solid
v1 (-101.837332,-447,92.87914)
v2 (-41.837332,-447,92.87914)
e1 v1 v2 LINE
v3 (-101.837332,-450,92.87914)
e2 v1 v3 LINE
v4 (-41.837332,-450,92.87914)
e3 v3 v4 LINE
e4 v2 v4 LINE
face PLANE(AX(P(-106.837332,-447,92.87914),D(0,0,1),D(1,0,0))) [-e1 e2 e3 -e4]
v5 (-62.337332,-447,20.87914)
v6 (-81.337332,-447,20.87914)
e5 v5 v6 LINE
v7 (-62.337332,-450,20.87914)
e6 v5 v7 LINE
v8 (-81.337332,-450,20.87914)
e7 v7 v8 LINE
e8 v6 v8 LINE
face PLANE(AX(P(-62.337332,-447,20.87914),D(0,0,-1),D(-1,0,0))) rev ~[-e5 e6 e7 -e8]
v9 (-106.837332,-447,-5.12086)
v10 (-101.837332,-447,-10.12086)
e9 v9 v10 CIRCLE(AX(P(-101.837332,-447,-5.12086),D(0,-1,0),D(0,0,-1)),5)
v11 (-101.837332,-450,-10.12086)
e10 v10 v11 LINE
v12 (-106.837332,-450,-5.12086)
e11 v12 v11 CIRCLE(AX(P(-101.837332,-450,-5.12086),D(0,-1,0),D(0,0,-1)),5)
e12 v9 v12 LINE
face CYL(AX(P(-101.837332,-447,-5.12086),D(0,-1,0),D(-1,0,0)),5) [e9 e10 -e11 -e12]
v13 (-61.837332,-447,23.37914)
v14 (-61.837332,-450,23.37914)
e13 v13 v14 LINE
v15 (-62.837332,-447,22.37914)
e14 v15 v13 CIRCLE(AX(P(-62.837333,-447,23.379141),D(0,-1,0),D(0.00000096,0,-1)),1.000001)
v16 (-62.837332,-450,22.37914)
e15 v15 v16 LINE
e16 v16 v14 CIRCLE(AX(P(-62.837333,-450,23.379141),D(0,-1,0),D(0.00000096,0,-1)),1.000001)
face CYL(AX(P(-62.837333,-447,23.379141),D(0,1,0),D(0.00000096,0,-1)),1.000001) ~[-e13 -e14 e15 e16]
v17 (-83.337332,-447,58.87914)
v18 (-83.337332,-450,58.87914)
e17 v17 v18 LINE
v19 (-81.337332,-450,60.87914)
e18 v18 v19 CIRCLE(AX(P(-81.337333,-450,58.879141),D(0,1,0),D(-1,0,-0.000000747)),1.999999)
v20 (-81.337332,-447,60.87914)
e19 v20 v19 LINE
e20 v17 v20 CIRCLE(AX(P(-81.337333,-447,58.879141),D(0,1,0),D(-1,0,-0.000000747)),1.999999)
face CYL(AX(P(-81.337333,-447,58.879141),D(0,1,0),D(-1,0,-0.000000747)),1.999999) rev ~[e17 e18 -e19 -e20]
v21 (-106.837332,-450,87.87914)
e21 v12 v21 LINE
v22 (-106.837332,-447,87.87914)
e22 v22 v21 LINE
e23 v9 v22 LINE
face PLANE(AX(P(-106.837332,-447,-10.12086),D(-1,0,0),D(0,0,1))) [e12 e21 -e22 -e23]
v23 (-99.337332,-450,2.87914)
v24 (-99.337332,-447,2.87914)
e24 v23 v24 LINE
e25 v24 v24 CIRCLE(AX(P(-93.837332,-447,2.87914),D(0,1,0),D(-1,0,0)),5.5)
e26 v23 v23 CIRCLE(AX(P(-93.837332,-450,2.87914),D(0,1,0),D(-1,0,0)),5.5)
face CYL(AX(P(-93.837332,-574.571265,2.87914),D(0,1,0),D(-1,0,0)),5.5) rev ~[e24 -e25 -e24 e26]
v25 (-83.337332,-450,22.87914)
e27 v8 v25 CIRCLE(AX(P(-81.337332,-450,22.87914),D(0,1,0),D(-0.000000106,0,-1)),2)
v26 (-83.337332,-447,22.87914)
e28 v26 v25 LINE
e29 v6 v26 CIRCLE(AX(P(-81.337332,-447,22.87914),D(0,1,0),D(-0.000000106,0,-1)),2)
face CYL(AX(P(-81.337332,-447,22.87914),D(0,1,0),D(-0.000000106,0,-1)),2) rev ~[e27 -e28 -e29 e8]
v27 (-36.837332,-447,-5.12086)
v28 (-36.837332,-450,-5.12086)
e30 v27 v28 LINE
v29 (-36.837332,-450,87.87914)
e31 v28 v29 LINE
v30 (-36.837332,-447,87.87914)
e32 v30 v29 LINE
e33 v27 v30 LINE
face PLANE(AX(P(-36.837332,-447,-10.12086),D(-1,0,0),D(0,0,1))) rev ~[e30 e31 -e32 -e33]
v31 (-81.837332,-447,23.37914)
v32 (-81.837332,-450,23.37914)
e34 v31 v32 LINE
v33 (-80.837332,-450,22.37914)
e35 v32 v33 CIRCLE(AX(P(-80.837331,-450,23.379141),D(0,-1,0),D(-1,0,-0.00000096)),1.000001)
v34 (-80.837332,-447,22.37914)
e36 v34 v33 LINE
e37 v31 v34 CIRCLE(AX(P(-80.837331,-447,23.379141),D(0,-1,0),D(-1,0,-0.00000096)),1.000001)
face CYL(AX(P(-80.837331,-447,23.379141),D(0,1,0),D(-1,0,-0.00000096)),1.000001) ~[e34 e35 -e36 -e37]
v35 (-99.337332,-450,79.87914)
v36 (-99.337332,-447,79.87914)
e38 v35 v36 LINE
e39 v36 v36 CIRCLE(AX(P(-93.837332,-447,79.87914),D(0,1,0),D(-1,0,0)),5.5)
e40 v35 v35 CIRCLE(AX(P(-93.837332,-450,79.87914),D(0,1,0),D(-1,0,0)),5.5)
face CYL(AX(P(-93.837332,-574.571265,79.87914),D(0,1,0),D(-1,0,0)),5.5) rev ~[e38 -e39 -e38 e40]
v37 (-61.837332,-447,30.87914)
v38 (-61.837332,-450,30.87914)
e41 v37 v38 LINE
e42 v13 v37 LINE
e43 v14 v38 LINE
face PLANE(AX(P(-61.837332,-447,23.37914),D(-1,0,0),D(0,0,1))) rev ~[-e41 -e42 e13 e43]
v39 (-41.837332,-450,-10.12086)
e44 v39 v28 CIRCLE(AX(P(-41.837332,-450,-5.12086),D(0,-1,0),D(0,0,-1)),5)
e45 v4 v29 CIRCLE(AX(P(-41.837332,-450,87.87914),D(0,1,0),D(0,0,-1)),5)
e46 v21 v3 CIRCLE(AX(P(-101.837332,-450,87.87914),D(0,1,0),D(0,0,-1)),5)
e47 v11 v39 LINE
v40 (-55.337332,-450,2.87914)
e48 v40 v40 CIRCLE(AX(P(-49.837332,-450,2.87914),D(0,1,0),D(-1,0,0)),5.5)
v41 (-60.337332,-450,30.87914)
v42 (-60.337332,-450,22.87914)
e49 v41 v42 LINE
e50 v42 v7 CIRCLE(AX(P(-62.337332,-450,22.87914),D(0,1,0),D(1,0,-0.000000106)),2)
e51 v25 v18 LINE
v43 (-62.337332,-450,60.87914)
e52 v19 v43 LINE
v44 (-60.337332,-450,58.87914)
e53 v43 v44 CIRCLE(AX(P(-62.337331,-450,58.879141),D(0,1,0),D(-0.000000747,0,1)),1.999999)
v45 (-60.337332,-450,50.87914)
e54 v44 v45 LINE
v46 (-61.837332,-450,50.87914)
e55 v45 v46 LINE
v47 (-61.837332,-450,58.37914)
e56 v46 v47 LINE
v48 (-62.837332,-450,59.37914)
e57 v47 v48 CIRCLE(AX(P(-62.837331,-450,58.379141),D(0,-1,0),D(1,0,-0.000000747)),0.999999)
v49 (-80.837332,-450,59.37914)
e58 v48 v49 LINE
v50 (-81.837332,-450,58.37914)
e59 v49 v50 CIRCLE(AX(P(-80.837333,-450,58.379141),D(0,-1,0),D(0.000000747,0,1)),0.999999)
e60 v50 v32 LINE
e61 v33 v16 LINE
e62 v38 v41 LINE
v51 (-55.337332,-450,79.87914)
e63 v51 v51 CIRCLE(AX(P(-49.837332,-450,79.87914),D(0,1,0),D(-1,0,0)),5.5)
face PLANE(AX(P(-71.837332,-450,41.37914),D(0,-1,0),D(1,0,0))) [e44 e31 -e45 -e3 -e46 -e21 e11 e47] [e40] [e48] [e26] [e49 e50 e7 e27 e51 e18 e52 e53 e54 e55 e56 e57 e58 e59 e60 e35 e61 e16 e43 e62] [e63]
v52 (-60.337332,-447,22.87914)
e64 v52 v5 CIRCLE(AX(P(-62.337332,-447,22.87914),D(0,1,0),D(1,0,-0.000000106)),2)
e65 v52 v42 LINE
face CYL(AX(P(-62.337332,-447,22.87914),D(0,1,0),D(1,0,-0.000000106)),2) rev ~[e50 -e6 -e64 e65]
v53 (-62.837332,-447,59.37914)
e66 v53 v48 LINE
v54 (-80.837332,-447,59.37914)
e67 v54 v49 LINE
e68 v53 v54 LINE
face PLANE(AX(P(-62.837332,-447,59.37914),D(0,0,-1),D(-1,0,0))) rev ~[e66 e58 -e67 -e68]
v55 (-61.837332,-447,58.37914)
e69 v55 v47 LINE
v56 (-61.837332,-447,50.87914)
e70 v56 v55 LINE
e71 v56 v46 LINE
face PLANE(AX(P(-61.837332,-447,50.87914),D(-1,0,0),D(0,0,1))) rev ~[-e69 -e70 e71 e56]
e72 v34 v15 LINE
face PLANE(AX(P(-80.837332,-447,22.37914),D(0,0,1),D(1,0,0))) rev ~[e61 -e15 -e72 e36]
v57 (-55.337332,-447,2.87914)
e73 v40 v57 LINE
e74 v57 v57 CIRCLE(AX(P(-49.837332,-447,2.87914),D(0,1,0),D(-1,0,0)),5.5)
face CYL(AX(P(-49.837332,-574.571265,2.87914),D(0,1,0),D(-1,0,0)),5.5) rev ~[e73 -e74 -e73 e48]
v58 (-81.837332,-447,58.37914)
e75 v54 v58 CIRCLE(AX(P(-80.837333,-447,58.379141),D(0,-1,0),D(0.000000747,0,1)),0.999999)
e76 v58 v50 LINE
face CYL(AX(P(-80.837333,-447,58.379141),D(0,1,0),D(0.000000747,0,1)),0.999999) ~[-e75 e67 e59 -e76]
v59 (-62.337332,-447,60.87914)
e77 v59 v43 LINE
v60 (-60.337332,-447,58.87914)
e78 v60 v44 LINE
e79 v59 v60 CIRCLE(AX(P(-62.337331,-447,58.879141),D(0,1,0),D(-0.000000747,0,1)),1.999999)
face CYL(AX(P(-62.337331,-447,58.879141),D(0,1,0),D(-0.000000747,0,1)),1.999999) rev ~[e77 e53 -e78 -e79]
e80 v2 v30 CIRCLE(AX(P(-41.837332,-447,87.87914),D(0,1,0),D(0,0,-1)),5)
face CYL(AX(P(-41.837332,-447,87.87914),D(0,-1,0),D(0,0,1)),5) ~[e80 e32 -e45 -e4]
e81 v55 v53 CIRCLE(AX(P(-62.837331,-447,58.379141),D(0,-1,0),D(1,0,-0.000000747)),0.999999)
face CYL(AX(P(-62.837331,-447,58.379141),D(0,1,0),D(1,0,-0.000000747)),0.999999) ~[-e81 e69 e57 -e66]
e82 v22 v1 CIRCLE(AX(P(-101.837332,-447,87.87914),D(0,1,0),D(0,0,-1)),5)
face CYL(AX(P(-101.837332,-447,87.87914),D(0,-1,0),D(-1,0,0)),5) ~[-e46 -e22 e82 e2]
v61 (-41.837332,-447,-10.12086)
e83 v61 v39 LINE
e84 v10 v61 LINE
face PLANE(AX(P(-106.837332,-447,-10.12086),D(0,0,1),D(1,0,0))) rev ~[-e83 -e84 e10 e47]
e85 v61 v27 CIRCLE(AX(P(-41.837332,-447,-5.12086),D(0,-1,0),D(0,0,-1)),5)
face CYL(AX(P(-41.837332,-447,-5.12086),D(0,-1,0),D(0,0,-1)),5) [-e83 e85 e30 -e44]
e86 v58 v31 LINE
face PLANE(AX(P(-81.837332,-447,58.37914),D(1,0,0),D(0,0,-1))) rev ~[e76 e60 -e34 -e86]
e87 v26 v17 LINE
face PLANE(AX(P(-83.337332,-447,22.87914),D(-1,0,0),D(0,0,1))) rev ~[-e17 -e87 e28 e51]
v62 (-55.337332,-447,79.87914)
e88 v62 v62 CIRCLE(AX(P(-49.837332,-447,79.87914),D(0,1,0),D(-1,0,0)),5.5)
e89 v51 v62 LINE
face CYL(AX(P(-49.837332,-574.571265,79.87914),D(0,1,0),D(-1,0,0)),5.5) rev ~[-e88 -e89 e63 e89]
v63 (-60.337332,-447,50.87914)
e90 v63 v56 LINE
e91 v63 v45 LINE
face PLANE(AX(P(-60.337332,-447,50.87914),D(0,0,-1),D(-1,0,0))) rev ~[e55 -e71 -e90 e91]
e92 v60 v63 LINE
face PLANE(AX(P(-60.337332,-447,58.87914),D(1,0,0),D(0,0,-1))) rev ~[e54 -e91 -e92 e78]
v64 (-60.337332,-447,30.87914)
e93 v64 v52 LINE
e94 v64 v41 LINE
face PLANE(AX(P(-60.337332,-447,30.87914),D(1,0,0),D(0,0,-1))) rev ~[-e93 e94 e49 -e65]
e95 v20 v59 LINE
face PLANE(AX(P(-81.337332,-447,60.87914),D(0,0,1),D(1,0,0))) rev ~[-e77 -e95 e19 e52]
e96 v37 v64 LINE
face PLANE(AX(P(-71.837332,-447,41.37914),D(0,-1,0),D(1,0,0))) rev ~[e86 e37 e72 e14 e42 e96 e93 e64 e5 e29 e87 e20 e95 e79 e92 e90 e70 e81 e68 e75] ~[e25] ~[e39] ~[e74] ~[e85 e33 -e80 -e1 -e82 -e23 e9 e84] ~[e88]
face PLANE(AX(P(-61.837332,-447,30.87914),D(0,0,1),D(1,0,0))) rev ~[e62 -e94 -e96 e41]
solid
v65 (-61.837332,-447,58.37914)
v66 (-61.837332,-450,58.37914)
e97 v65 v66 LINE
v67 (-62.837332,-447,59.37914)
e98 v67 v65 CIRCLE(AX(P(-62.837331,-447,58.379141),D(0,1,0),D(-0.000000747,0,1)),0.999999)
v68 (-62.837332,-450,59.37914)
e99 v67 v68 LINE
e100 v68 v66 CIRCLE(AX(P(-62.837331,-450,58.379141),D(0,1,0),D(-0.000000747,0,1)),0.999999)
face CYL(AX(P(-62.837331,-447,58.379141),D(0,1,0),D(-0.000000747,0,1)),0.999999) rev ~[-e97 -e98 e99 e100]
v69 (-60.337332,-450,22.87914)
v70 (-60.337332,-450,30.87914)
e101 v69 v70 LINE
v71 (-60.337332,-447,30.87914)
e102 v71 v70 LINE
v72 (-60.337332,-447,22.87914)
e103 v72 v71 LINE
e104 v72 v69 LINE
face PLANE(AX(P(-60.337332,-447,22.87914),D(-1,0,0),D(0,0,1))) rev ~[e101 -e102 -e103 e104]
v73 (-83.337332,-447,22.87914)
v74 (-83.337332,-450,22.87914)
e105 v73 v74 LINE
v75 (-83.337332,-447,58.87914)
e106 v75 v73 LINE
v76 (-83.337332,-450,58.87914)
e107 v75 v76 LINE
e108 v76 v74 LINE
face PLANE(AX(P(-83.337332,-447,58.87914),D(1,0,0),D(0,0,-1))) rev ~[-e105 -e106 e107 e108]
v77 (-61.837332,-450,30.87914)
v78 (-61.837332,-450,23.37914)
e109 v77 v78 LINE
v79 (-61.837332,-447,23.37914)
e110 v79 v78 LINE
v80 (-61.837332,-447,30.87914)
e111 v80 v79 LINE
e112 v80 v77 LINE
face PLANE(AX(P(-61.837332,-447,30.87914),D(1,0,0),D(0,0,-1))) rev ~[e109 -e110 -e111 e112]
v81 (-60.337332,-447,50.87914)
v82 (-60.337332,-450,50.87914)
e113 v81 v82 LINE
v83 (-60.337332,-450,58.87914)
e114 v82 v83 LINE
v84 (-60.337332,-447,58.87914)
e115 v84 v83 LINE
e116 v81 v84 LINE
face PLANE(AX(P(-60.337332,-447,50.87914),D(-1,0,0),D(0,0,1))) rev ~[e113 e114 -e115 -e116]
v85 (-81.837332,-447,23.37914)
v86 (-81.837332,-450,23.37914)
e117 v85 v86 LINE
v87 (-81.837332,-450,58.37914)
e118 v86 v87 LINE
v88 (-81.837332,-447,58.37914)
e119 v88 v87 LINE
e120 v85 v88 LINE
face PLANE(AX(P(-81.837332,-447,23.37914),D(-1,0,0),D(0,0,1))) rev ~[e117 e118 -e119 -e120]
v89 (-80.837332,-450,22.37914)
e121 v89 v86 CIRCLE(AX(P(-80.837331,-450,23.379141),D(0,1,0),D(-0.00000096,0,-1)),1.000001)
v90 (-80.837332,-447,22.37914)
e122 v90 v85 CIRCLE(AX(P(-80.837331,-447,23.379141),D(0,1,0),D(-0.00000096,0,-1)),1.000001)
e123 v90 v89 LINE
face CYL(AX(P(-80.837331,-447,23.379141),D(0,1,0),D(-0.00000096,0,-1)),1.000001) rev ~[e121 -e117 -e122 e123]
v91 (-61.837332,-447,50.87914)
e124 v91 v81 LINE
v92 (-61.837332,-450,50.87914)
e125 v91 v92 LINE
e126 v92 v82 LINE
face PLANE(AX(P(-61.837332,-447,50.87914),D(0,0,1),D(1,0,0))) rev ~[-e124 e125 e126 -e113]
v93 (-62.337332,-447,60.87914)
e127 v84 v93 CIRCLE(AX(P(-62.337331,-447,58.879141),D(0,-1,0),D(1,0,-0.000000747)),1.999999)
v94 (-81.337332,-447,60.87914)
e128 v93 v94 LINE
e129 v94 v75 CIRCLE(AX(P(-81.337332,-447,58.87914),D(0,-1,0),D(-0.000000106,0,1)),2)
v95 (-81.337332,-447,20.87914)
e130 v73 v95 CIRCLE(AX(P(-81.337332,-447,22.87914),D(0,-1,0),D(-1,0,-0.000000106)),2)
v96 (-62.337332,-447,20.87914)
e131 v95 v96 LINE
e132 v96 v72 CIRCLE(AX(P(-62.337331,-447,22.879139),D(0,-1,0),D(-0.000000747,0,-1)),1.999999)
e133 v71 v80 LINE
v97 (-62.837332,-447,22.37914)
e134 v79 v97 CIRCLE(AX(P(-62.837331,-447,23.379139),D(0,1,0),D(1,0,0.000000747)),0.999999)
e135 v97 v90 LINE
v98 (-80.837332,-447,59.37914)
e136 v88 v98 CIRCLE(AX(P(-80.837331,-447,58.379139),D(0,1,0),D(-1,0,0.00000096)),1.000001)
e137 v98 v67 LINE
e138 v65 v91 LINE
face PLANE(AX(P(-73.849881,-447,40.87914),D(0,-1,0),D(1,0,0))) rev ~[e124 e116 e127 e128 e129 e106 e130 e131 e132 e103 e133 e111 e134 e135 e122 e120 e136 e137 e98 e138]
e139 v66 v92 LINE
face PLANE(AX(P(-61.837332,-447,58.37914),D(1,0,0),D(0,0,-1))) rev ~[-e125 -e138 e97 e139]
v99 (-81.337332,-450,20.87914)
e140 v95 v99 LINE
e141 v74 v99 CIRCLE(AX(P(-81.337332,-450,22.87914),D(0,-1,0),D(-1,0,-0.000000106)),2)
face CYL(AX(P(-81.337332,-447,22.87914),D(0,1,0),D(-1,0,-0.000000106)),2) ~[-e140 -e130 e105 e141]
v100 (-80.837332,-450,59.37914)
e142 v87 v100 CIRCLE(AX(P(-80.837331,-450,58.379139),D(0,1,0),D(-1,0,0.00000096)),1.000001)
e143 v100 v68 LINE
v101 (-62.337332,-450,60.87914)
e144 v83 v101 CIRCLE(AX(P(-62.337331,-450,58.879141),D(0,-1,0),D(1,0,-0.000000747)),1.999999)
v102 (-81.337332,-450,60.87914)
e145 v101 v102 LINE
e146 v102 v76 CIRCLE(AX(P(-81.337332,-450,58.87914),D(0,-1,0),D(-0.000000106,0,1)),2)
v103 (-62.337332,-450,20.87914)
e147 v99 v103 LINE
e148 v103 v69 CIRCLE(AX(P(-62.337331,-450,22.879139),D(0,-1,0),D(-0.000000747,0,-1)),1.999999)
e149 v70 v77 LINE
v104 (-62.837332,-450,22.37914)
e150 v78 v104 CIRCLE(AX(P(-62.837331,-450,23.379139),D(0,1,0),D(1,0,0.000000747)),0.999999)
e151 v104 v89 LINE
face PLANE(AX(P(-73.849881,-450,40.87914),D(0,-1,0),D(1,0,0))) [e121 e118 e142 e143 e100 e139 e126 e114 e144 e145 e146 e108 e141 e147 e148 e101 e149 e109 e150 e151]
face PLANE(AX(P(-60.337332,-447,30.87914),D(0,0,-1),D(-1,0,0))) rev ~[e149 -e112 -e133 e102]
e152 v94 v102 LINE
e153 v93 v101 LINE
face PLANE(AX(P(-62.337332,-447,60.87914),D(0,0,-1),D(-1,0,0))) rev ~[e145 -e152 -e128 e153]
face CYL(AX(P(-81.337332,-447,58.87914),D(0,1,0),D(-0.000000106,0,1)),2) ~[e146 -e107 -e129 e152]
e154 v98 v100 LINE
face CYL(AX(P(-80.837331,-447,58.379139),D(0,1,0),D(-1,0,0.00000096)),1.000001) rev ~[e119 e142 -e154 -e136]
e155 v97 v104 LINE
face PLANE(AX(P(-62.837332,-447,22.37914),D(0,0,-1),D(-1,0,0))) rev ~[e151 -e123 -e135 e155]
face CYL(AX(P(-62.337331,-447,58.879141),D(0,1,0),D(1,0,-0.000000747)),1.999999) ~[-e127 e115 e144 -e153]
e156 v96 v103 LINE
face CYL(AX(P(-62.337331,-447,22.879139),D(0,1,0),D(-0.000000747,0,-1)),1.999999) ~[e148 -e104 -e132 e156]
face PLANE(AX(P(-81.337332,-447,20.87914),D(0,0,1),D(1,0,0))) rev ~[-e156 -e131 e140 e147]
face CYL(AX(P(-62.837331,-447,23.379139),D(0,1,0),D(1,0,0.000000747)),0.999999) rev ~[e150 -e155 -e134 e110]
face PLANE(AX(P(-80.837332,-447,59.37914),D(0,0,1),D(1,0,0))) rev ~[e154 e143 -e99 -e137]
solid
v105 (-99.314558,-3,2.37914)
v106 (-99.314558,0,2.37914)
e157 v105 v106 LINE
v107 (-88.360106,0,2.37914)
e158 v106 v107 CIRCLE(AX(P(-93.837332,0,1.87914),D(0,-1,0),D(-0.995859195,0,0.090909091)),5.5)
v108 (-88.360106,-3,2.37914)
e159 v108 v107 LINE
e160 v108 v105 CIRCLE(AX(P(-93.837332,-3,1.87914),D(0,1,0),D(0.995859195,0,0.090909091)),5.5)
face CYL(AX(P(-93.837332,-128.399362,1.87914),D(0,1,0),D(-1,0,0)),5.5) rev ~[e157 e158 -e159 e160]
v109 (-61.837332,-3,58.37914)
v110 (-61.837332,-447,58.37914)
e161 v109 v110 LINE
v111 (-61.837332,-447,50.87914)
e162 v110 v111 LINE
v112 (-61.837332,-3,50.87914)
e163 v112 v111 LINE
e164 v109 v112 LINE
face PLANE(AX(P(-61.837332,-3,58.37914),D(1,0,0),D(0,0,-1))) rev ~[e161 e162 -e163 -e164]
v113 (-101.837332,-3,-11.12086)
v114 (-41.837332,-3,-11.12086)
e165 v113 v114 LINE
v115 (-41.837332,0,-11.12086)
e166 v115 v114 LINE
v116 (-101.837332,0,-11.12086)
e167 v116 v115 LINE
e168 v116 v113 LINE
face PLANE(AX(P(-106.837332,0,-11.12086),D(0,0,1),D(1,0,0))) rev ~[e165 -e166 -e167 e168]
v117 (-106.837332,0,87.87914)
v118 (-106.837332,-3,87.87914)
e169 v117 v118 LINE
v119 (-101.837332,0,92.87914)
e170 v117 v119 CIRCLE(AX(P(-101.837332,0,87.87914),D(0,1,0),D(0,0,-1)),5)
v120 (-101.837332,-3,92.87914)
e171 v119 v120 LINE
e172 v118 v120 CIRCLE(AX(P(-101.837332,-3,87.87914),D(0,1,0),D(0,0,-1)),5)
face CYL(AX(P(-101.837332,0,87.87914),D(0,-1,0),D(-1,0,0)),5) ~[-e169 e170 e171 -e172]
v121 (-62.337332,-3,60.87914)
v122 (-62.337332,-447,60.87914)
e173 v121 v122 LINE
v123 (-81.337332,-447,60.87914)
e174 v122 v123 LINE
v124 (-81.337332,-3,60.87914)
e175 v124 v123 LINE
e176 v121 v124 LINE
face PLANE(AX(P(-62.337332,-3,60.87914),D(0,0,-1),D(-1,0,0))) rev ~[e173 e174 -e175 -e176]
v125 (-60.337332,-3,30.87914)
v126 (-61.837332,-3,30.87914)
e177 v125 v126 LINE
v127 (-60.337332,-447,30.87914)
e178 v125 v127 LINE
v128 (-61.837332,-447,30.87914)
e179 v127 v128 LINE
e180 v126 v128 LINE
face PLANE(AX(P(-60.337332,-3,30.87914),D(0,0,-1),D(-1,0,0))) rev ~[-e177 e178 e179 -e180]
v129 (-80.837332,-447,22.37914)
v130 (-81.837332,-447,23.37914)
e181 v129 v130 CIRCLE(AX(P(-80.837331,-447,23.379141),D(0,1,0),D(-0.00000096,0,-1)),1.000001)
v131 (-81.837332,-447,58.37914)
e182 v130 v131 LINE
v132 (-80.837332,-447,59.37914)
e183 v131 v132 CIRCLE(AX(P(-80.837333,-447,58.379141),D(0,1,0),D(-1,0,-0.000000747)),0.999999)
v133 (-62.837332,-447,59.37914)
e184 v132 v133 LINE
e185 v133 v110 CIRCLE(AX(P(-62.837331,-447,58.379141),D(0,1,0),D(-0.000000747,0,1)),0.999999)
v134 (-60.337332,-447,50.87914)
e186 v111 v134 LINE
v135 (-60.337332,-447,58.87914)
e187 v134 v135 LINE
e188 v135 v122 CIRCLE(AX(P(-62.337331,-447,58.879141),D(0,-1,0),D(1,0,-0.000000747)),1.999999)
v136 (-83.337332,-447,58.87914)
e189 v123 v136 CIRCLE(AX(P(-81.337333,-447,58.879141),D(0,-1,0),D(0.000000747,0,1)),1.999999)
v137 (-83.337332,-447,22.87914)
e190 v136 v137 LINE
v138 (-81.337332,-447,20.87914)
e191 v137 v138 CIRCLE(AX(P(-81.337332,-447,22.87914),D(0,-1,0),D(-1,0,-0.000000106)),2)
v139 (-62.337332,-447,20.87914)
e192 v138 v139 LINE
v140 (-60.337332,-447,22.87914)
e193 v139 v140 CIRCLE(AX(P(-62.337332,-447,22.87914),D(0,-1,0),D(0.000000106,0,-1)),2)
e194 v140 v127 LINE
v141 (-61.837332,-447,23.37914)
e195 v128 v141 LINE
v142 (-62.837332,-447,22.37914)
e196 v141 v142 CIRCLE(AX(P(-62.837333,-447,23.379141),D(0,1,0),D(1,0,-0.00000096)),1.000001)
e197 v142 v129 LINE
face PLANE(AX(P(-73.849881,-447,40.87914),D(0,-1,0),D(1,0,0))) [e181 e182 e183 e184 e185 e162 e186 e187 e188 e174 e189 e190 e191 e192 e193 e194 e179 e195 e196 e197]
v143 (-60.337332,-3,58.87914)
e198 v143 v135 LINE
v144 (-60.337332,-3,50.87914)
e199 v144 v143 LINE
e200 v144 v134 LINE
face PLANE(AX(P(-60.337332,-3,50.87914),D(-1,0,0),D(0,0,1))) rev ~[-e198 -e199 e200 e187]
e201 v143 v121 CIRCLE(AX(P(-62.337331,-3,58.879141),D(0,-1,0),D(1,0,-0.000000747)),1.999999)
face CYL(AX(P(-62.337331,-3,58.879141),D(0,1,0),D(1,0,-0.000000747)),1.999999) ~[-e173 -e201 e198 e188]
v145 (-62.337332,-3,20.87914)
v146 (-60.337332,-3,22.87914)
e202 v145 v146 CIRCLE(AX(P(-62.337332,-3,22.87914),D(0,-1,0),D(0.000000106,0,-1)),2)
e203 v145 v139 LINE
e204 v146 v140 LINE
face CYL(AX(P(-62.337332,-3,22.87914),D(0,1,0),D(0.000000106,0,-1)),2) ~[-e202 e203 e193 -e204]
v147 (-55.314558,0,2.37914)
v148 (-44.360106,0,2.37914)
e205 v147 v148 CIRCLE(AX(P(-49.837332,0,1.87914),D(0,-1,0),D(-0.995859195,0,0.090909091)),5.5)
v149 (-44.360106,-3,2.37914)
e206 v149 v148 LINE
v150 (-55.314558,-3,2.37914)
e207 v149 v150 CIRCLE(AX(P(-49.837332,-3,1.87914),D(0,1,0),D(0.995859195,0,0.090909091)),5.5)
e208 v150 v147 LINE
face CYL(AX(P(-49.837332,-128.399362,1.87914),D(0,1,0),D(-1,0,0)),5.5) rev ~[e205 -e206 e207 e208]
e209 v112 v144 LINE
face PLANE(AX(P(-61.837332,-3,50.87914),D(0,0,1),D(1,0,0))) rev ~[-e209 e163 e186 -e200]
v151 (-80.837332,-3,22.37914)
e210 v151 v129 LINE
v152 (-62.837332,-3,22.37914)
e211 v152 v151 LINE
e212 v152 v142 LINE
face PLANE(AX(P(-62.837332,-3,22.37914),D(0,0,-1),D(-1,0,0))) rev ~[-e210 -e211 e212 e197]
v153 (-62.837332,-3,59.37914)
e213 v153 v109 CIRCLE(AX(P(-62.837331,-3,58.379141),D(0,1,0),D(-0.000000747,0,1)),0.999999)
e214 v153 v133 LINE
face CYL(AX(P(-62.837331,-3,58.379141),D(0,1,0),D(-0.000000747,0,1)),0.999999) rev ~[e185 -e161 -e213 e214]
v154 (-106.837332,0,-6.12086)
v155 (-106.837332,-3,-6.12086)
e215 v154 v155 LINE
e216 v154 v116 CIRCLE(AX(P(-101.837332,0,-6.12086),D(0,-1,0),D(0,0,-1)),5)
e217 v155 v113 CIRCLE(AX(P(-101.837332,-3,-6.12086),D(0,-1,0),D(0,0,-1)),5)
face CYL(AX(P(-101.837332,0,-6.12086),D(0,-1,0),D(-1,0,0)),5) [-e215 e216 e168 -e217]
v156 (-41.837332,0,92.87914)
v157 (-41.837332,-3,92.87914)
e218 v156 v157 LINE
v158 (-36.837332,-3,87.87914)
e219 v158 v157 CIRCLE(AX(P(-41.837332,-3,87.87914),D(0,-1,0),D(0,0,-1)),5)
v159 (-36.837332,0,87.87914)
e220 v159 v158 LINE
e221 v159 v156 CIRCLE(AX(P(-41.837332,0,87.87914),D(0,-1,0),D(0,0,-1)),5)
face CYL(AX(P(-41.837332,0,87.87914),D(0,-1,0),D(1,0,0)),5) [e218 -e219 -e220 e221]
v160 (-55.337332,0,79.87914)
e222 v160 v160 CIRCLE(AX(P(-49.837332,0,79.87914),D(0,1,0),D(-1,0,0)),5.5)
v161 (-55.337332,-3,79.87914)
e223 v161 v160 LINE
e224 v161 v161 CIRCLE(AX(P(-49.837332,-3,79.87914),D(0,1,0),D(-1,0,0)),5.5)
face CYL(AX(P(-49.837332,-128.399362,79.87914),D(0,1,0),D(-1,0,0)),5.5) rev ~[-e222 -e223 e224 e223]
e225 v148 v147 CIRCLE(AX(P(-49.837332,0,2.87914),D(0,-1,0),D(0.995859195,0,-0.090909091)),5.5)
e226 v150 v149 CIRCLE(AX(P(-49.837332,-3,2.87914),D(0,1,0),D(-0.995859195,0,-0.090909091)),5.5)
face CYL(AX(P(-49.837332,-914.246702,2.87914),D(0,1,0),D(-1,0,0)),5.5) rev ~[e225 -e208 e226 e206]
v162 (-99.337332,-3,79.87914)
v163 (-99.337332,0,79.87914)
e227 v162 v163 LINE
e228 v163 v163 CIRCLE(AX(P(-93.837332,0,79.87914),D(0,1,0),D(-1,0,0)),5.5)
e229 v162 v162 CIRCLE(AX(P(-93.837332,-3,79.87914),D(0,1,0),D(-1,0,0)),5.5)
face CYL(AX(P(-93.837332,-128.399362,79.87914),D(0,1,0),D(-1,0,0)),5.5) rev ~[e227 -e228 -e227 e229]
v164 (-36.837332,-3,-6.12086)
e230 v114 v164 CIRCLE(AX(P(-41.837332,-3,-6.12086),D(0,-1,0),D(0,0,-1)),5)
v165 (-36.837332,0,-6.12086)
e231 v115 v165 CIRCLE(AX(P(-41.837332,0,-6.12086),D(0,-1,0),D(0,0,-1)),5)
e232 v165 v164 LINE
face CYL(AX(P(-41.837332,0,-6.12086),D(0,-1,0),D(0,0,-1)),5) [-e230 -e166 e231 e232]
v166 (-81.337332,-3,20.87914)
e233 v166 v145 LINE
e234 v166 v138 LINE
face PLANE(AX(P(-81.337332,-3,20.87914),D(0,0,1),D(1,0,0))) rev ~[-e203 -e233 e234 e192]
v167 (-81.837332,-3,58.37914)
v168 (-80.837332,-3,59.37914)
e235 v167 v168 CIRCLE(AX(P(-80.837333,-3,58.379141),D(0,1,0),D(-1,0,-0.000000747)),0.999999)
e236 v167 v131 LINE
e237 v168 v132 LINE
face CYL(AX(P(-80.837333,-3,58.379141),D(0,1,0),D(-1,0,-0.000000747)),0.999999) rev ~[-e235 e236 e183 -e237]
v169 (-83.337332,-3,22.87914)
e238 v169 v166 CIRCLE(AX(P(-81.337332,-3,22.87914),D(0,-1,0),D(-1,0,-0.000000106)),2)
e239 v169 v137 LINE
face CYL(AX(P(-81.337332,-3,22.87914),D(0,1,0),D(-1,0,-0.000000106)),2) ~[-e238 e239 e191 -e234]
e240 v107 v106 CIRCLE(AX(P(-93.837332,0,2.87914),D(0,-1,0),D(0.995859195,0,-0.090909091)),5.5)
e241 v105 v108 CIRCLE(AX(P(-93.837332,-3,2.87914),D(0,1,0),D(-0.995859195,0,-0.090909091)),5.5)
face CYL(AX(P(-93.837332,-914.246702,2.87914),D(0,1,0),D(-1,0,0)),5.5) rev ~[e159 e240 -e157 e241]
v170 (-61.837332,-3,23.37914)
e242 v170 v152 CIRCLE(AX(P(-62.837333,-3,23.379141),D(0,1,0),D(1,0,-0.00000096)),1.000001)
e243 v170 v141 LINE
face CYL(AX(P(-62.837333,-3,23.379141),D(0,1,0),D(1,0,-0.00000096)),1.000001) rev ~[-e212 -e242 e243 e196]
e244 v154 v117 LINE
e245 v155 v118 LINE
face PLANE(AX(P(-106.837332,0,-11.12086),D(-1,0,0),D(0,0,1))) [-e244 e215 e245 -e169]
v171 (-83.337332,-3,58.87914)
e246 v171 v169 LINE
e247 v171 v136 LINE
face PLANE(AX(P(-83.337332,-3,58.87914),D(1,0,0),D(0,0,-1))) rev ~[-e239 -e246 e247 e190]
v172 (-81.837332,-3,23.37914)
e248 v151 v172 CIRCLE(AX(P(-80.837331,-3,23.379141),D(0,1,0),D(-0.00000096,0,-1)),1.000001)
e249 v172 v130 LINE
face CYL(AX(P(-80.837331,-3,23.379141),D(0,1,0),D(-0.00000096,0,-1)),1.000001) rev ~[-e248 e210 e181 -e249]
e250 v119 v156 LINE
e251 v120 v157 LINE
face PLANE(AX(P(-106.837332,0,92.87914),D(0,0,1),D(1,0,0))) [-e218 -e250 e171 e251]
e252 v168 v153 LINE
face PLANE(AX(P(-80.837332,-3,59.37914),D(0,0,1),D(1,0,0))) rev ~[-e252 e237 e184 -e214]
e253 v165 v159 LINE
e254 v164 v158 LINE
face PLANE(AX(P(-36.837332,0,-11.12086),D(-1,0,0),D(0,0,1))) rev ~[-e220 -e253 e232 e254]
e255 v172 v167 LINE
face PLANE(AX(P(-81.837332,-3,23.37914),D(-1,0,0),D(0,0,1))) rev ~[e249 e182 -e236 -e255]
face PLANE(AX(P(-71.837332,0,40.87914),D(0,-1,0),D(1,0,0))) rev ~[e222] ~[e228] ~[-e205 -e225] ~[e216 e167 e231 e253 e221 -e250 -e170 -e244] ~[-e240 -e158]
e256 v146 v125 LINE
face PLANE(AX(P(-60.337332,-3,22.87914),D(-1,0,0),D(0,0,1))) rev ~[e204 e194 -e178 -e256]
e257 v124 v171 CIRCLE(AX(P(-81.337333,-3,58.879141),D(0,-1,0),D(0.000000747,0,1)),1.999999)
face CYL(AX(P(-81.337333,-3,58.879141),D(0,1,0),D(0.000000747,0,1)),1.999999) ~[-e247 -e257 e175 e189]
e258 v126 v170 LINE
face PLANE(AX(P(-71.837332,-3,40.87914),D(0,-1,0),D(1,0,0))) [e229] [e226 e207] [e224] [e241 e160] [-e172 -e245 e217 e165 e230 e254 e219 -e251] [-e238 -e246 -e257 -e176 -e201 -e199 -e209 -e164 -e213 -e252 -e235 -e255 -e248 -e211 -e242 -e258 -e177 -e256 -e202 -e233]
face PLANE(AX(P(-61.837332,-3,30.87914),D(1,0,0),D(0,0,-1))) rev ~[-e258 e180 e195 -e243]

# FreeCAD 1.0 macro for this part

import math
import FreeCAD as App
import Part
import Sketcher
Q = App.Units.Quantity


def edges_at(feature, points):
    """Names of the edges that pass closest to the given points."""
    edges = feature.Shape.Edges
    near = lambda p: min(range(len(edges)), key=lambda i: edges[i].distToShape(Part.Vertex(*p))[0])
    return sorted({f"Edge{near(p) + 1}" for p in points})

doc = App.newDocument("Part")
body = doc.addObject("PartDesign::Body", "Body")

# Sketch on XZ plane
sketch1 = body.newObject("Sketcher::SketchObject", "Sketch")
sketch1.AttachmentSupport = (doc.getObject("XZ_Plane"), [""])
sketch1.MapMode = "FlatFace"
sketch1.addGeometry([
    Part.LineSegment(App.Vector(-106.837332, 92.87914, 0), App.Vector(-106.837332, -11.12086, 0)),
    Part.LineSegment(App.Vector(-106.837332, -11.12086, 0), App.Vector(-36.837332, -11.12086, 0)),
    Part.LineSegment(App.Vector(-36.837332, -11.12086, 0), App.Vector(-36.837332, 92.87914, 0)),
    Part.LineSegment(App.Vector(-36.837332, 92.87914, 0), App.Vector(-106.837332, 92.87914, 0)),
], False)
sketch1.addConstraint([
    Sketcher.Constraint("Coincident", 0, 2, 1, 1),
    Sketcher.Constraint("Coincident", 1, 2, 2, 1),
    Sketcher.Constraint("Coincident", 2, 2, 3, 1),
    Sketcher.Constraint("Coincident", 3, 2, 0, 1),
    Sketcher.Constraint("Vertical", 0),
    Sketcher.Constraint("Horizontal", 1),
    Sketcher.Constraint("Vertical", 2),
    Sketcher.Constraint("Horizontal", 3),
    Sketcher.Constraint("DistanceX", 1, 1, 1, 2, Q("70 mm")),
    Sketcher.Constraint("DistanceY", 0, 2, 0, 1, Q("104 mm")),
    Sketcher.Constraint("DistanceY", 0, 2, -1, 1, Q("11.12086 mm")),
    Sketcher.Constraint("DistanceX", 0, 2, -1, 1, Q("106.837332 mm")),
])
pad1 = body.newObject("PartDesign::Pad", "Pad")
pad1.Profile = sketch1
pad1.Length = 3
doc.recompute()

fillet = body.newObject("PartDesign::Fillet", "Fillet")
fillet.Base = (pad1, edges_at(pad1, [
    (-36.837, -1.5, 92.879),
    (-106.837, -1.5, 92.879),
    (-106.837, -1.5, -11.121),
    (-36.837, -1.5, -11.121),
]))
fillet.Radius = 5

# Sketch on XZ plane
sketch2 = body.newObject("Sketcher::SketchObject", "Sketch001")
sketch2.AttachmentSupport = (doc.getObject("XZ_Plane"), [""])
sketch2.MapMode = "FlatFace"
sketch2.AttachmentOffset = App.Placement(App.Vector(0, 0, 3), App.Rotation())
sketch2.addGeometry([
    Part.Circle(App.Vector(-49.837332, 1.87914, 0), App.Vector(0, 0, 1), 5.5),
    Part.Circle(App.Vector(-93.837332, 1.87914, 0), App.Vector(0, 0, 1), 5.5),
    Part.Circle(App.Vector(-93.837332, 79.87914, 0), App.Vector(0, 0, 1), 5.5),
    Part.Circle(App.Vector(-49.837332, 79.87914, 0), App.Vector(0, 0, 1), 5.5),
], False)
sketch2.addConstraint([
    Sketcher.Constraint("Equal", 0, 1),
    Sketcher.Constraint("Equal", 1, 2),
    Sketcher.Constraint("Equal", 2, 3),
    Sketcher.Constraint("Horizontal", 0, 3, 1, 3),
    Sketcher.Constraint("Horizontal", 2, 3, 3, 3),
    Sketcher.Constraint("Vertical", 1, 3, 2, 3),
    Sketcher.Constraint("Vertical", 0, 3, 3, 3),
    Sketcher.Constraint("Diameter", 0, Q("11 mm")),
    Sketcher.Constraint("DistanceX", 1, 3, 0, 3, Q("44 mm")),
    Sketcher.Constraint("DistanceY", 1, 3, 2, 3, Q("78 mm")),
    Sketcher.Constraint("DistanceY", -1, 1, 0, 3, Q("1.87914 mm")),
    Sketcher.Constraint("DistanceX", 0, 3, -1, 1, Q("49.837332 mm")),
])
doc.recompute()
hole = body.newObject("PartDesign::Hole", "Hole")
hole.Profile = sketch2
hole.ThreadType = "None"
hole.Diameter = 11
hole.DepthType = "ThroughAll"

# Sketch on XZ plane
sketch3 = body.newObject("Sketcher::SketchObject", "Sketch002")
sketch3.AttachmentSupport = (doc.getObject("XZ_Plane"), [""])
sketch3.MapMode = "FlatFace"
sketch3.AttachmentOffset = App.Placement(App.Vector(0, 0, 3), App.Rotation())
sketch3.addGeometry([
    Part.ArcOfCircle(Part.Circle(App.Vector(-62.337331, 58.879141, 0), App.Vector(0, 0, 1), 1.999999), math.radians(-0.000043), math.radians(90.000043)),  # 0
    Part.LineSegment(App.Vector(-62.337332, 60.87914, 0), App.Vector(-81.337332, 60.87914, 0)),  # 1
    Part.ArcOfCircle(Part.Circle(App.Vector(-81.337333, 58.879141, 0), App.Vector(0, 0, 1), 1.999999), math.radians(89.999957), math.radians(180.000043)),  # 2
    Part.LineSegment(App.Vector(-83.337332, 58.87914, 0), App.Vector(-83.337332, 22.87914, 0)),  # 3
    Part.ArcOfCircle(Part.Circle(App.Vector(-81.337332, 22.87914, 0), App.Vector(0, 0, 1), 2), math.radians(-179.999994), math.radians(-90.000006)),  # 4
    Part.LineSegment(App.Vector(-81.337332, 20.87914, 0), App.Vector(-62.337332, 20.87914, 0)),  # 5
    Part.ArcOfCircle(Part.Circle(App.Vector(-62.337332, 22.87914, 0), App.Vector(0, 0, 1), 2), math.radians(-89.999994), math.radians(-0.000006)),  # 6
    Part.LineSegment(App.Vector(-60.337332, 22.87914, 0), App.Vector(-60.337332, 30.87914, 0)),  # 7
    Part.LineSegment(App.Vector(-60.337332, 30.87914, 0), App.Vector(-61.837332, 30.87914, 0)),  # 8
    Part.LineSegment(App.Vector(-61.837332, 30.87914, 0), App.Vector(-61.837332, 23.37914, 0)),  # 9
    Part.ArcOfCircle(Part.Circle(App.Vector(-62.837333, 23.379141, 0), App.Vector(0, 0, 1), 1.000001), math.radians(-89.999945), math.radians(-0.000055)),  # 10
    Part.LineSegment(App.Vector(-62.837332, 22.37914, 0), App.Vector(-80.837332, 22.37914, 0)),  # 11
    Part.ArcOfCircle(Part.Circle(App.Vector(-80.837331, 23.379141, 0), App.Vector(0, 0, 1), 1.000001), math.radians(-179.999945), math.radians(-90.000055)),  # 12
    Part.LineSegment(App.Vector(-81.837332, 23.37914, 0), App.Vector(-81.837332, 58.37914, 0)),  # 13
    Part.ArcOfCircle(Part.Circle(App.Vector(-80.837333, 58.379141, 0), App.Vector(0, 0, 1), 0.999999), math.radians(89.999957), math.radians(180.000043)),  # 14
    Part.LineSegment(App.Vector(-80.837332, 59.37914, 0), App.Vector(-62.837332, 59.37914, 0)),  # 15
    Part.ArcOfCircle(Part.Circle(App.Vector(-62.837331, 58.379141, 0), App.Vector(0, 0, 1), 0.999999), math.radians(-0.000043), math.radians(90.000043)),  # 16
    Part.LineSegment(App.Vector(-61.837332, 58.37914, 0), App.Vector(-61.837332, 50.87914, 0)),  # 17
    Part.LineSegment(App.Vector(-61.837332, 50.87914, 0), App.Vector(-60.337332, 50.87914, 0)),  # 18
    Part.LineSegment(App.Vector(-60.337332, 50.87914, 0), App.Vector(-60.337332, 58.87914, 0)),  # 19
], False)
sketch3.addConstraint([
    Sketcher.Constraint("Tangent", 0, 2, 1, 1),
    Sketcher.Constraint("Tangent", 1, 2, 2, 1),
    Sketcher.Constraint("Tangent", 2, 2, 3, 1),
    Sketcher.Constraint("Tangent", 3, 2, 4, 1),
    Sketcher.Constraint("Tangent", 4, 2, 5, 1),
    Sketcher.Constraint("Tangent", 5, 2, 6, 1),
    Sketcher.Constraint("Tangent", 6, 2, 7, 1),
    Sketcher.Constraint("Coincident", 7, 2, 8, 1),
    Sketcher.Constraint("Coincident", 8, 2, 9, 1),
    Sketcher.Constraint("Tangent", 9, 2, 10, 2),
    Sketcher.Constraint("Tangent", 10, 1, 11, 1),
    Sketcher.Constraint("Tangent", 11, 2, 12, 2),
    Sketcher.Constraint("Tangent", 12, 1, 13, 1),
    Sketcher.Constraint("Tangent", 13, 2, 14, 2),
    Sketcher.Constraint("Tangent", 14, 1, 15, 1),
    Sketcher.Constraint("Tangent", 15, 2, 16, 2),
    Sketcher.Constraint("Tangent", 16, 1, 17, 1),
    Sketcher.Constraint("Coincident", 17, 2, 18, 1),
    Sketcher.Constraint("Coincident", 18, 2, 19, 1),
    Sketcher.Constraint("Tangent", 19, 2, 0, 1),
    Sketcher.Constraint("Horizontal", 1),
    Sketcher.Constraint("Vertical", 3),
    Sketcher.Constraint("Horizontal", 5),
    Sketcher.Constraint("Vertical", 7),
    Sketcher.Constraint("Horizontal", 8),
    Sketcher.Constraint("Vertical", 9),
    Sketcher.Constraint("Horizontal", 11),
    Sketcher.Constraint("Vertical", 13),
    Sketcher.Constraint("Horizontal", 15),
    Sketcher.Constraint("Vertical", 17),
    Sketcher.Constraint("Horizontal", 18),
    Sketcher.Constraint("Vertical", 19),
    Sketcher.Constraint("Equal", 0, 2),
    Sketcher.Constraint("Equal", 2, 4),
    Sketcher.Constraint("Equal", 4, 6),
    Sketcher.Constraint("Equal", 10, 12),
    Sketcher.Constraint("Equal", 12, 14),
    Sketcher.Constraint("Equal", 14, 16),
    Sketcher.Constraint("Vertical", 0, 3, 6, 3),
    Sketcher.Constraint("Vertical", 10, 3, 16, 3),
    Sketcher.Constraint("Equal", 9, 17),
    Sketcher.Constraint("Equal", 7, 19),
    Sketcher.Constraint("Radius", 0, Q("1.999999 mm")),
    Sketcher.Constraint("Radius", 10, Q("1.000001 mm")),
    Sketcher.Constraint("DistanceX", 1, 2, 1, 1, Q("19 mm")),
    Sketcher.Constraint("DistanceX", 11, 2, 11, 1, Q("18 mm")),
    Sketcher.Constraint("DistanceY", 3, 2, 3, 1, Q("36 mm")),
    Sketcher.Constraint("DistanceY", 7, 1, 7, 2, Q("8 mm")),
    Sketcher.Constraint("DistanceY", 13, 1, 13, 2, Q("35 mm")),
    Sketcher.Constraint("DistanceX", 8, 2, 8, 1, Q("1.5 mm")),
    Sketcher.Constraint("DistanceX", 0, 3, -1, 1, Q("62.337331 mm")),
    Sketcher.Constraint("DistanceY", -1, 1, 0, 3, Q("58.879141 mm")),
])
pad2 = body.newObject("PartDesign::Pad", "Pad001")
pad2.Profile = sketch3
pad2.Length = 444

# Sketch on XZ plane
sketch4 = body.newObject("Sketcher::SketchObject", "Sketch003")
sketch4.AttachmentSupport = (doc.getObject("XZ_Plane"), [""])
sketch4.MapMode = "FlatFace"
sketch4.AttachmentOffset = App.Placement(App.Vector(0, 0, 450), App.Rotation())
sketch4.addGeometry([
    Part.Circle(App.Vector(-93.837332, 79.87914, 0), App.Vector(0, 0, 1), 5.5),
    Part.Circle(App.Vector(-49.837332, 79.87914, 0), App.Vector(0, 0, 1), 5.5),
    Part.Circle(App.Vector(-49.837332, 2.87914, 0), App.Vector(0, 0, 1), 5.5),
    Part.Circle(App.Vector(-93.837332, 2.87914, 0), App.Vector(0, 0, 1), 5.5),
], False)
sketch4.addConstraint([
    Sketcher.Constraint("Equal", 0, 1),
    Sketcher.Constraint("Equal", 1, 2),
    Sketcher.Constraint("Equal", 2, 3),
    Sketcher.Constraint("Horizontal", 0, 3, 1, 3),
    Sketcher.Constraint("Horizontal", 2, 3, 3, 3),
    Sketcher.Constraint("Vertical", 1, 3, 2, 3),
    Sketcher.Constraint("Vertical", 0, 3, 3, 3),
    Sketcher.Constraint("Diameter", 0, Q("11 mm")),
    Sketcher.Constraint("DistanceX", 0, 3, 1, 3, Q("44 mm")),
    Sketcher.Constraint("DistanceY", 2, 3, 1, 3, Q("77 mm")),
    Sketcher.Constraint("DistanceY", -1, 1, 0, 3, Q("79.87914 mm")),
    Sketcher.Constraint("DistanceX", 0, 3, -1, 1, Q("93.837332 mm")),
])
doc.recompute()
hole2 = body.newObject("PartDesign::Hole", "Hole001")
hole2.Profile = sketch4
hole2.ThreadType = "None"
hole2.Diameter = 11
hole2.DepthType = "ThroughAll"
body2 = doc.addObject("PartDesign::Body", "Body001")

# Sketch on XZ plane
sketch5 = body2.newObject("Sketcher::SketchObject", "Sketch004")
sketch5.AttachmentSupport = (doc.getObject("XZ_Plane001"), [""])
sketch5.MapMode = "FlatFace"
sketch5.AttachmentOffset = App.Placement(App.Vector(0, 0, 447), App.Rotation())
sketch5.addGeometry([
    Part.LineSegment(App.Vector(-106.837332, 92.87914, 0), App.Vector(-106.837332, -10.12086, 0)),  # 0
    Part.LineSegment(App.Vector(-106.837332, -10.12086, 0), App.Vector(-36.837332, -10.12086, 0)),  # 1
    Part.LineSegment(App.Vector(-36.837332, -10.12086, 0), App.Vector(-36.837332, 92.87914, 0)),  # 2
    Part.LineSegment(App.Vector(-36.837332, 92.87914, 0), App.Vector(-106.837332, 92.87914, 0)),  # 3
    Part.LineSegment(App.Vector(-60.337332, 50.87914, 0), App.Vector(-61.837332, 50.87914, 0)),  # 4
    Part.LineSegment(App.Vector(-61.837332, 50.87914, 0), App.Vector(-61.837332, 58.37914, 0)),  # 5
    Part.ArcOfCircle(Part.Circle(App.Vector(-62.837331, 58.379141, 0), App.Vector(0, 0, 1), 0.999999), math.radians(-0.000043), math.radians(90.000043)),  # 6
    Part.LineSegment(App.Vector(-62.837332, 59.37914, 0), App.Vector(-80.837332, 59.37914, 0)),  # 7
    Part.ArcOfCircle(Part.Circle(App.Vector(-80.837333, 58.379141, 0), App.Vector(0, 0, 1), 0.999999), math.radians(89.999957), math.radians(180.000043)),  # 8
    Part.LineSegment(App.Vector(-81.837332, 58.37914, 0), App.Vector(-81.837332, 23.37914, 0)),  # 9
    Part.ArcOfCircle(Part.Circle(App.Vector(-80.837331, 23.379141, 0), App.Vector(0, 0, 1), 1.000001), math.radians(-179.999945), math.radians(-90.000055)),  # 10
    Part.LineSegment(App.Vector(-80.837332, 22.37914, 0), App.Vector(-62.837332, 22.37914, 0)),  # 11
    Part.ArcOfCircle(Part.Circle(App.Vector(-62.837333, 23.379141, 0), App.Vector(0, 0, 1), 1.000001), math.radians(-89.999945), math.radians(-0.000055)),  # 12
    Part.LineSegment(App.Vector(-61.837332, 23.37914, 0), App.Vector(-61.837332, 30.87914, 0)),  # 13
    Part.LineSegment(App.Vector(-61.837332, 30.87914, 0), App.Vector(-60.337332, 30.87914, 0)),  # 14
    Part.LineSegment(App.Vector(-60.337332, 30.87914, 0), App.Vector(-60.337332, 22.87914, 0)),  # 15
    Part.ArcOfCircle(Part.Circle(App.Vector(-62.337332, 22.87914, 0), App.Vector(0, 0, 1), 2), math.radians(-89.999994), math.radians(-0.000006)),  # 16
    Part.LineSegment(App.Vector(-62.337332, 20.87914, 0), App.Vector(-81.337332, 20.87914, 0)),  # 17
    Part.ArcOfCircle(Part.Circle(App.Vector(-81.337332, 22.87914, 0), App.Vector(0, 0, 1), 2), math.radians(-179.999994), math.radians(-90.000006)),  # 18
    Part.LineSegment(App.Vector(-83.337332, 22.87914, 0), App.Vector(-83.337332, 58.87914, 0)),  # 19
    Part.ArcOfCircle(Part.Circle(App.Vector(-81.337333, 58.879141, 0), App.Vector(0, 0, 1), 1.999999), math.radians(89.999957), math.radians(180.000043)),  # 20
    Part.LineSegment(App.Vector(-81.337332, 60.87914, 0), App.Vector(-62.337332, 60.87914, 0)),  # 21
    Part.ArcOfCircle(Part.Circle(App.Vector(-62.337331, 58.879141, 0), App.Vector(0, 0, 1), 1.999999), math.radians(-0.000043), math.radians(90.000043)),  # 22
    Part.LineSegment(App.Vector(-60.337332, 58.87914, 0), App.Vector(-60.337332, 50.87914, 0)),  # 23
], False)
sketch5.addConstraint([
    Sketcher.Constraint("Coincident", 0, 2, 1, 1),
    Sketcher.Constraint("Coincident", 1, 2, 2, 1),
    Sketcher.Constraint("Coincident", 2, 2, 3, 1),
    Sketcher.Constraint("Coincident", 3, 2, 0, 1),
    Sketcher.Constraint("Coincident", 4, 2, 5, 1),
    Sketcher.Constraint("Tangent", 5, 2, 6, 1),
    Sketcher.Constraint("Tangent", 6, 2, 7, 1),
    Sketcher.Constraint("Tangent", 7, 2, 8, 1),
    Sketcher.Constraint("Tangent", 8, 2, 9, 1),
    Sketcher.Constraint("Tangent", 9, 2, 10, 1),
    Sketcher.Constraint("Tangent", 10, 2, 11, 1),
    Sketcher.Constraint("Tangent", 11, 2, 12, 1),
    Sketcher.Constraint("Tangent", 12, 2, 13, 1),
    Sketcher.Constraint("Coincident", 13, 2, 14, 1),
    Sketcher.Constraint("Coincident", 14, 2, 15, 1),
    Sketcher.Constraint("Tangent", 15, 2, 16, 2),
    Sketcher.Constraint("Tangent", 16, 1, 17, 1),
    Sketcher.Constraint("Tangent", 17, 2, 18, 2),
    Sketcher.Constraint("Tangent", 18, 1, 19, 1),
    Sketcher.Constraint("Tangent", 19, 2, 20, 2),
    Sketcher.Constraint("Tangent", 20, 1, 21, 1),
    Sketcher.Constraint("Tangent", 21, 2, 22, 2),
    Sketcher.Constraint("Tangent", 22, 1, 23, 1),
    Sketcher.Constraint("Coincident", 23, 2, 4, 1),
    Sketcher.Constraint("Vertical", 0),
    Sketcher.Constraint("Horizontal", 1),
    Sketcher.Constraint("Vertical", 2),
    Sketcher.Constraint("Horizontal", 3),
    Sketcher.Constraint("Horizontal", 4),
    Sketcher.Constraint("Vertical", 5),
    Sketcher.Constraint("Horizontal", 7),
    Sketcher.Constraint("Vertical", 9),
    Sketcher.Constraint("Horizontal", 11),
    Sketcher.Constraint("Vertical", 13),
    Sketcher.Constraint("Horizontal", 14),
    Sketcher.Constraint("Vertical", 15),
    Sketcher.Constraint("Horizontal", 17),
    Sketcher.Constraint("Vertical", 19),
    Sketcher.Constraint("Horizontal", 21),
    Sketcher.Constraint("Vertical", 23),
    Sketcher.Constraint("Equal", 6, 8),
    Sketcher.Constraint("Equal", 8, 10),
    Sketcher.Constraint("Equal", 10, 12),
    Sketcher.Constraint("Equal", 16, 18),
    Sketcher.Constraint("Equal", 18, 20),
    Sketcher.Constraint("Equal", 20, 22),
    Sketcher.Constraint("Vertical", 6, 3, 12, 3),
    Sketcher.Constraint("Vertical", 16, 3, 22, 3),
    Sketcher.Constraint("Equal", 5, 13),
    Sketcher.Constraint("Equal", 15, 23),
    Sketcher.Constraint("Radius", 6, Q("0.999999 mm")),
    Sketcher.Constraint("Radius", 16, Q("2 mm")),
    Sketcher.Constraint("DistanceX", 1, 1, 1, 2, Q("70 mm")),
    Sketcher.Constraint("DistanceX", 7, 2, 7, 1, Q("18 mm")),
    Sketcher.Constraint("DistanceX", 17, 2, 17, 1, Q("19 mm")),
    Sketcher.Constraint("DistanceY", 0, 2, 0, 1, Q("103 mm")),
    Sketcher.Constraint("DistanceY", 9, 2, 9, 1, Q("35 mm")),
    Sketcher.Constraint("DistanceY", 15, 2, 15, 1, Q("8 mm")),
    Sketcher.Constraint("DistanceY", 19, 1, 19, 2, Q("36 mm")),
    Sketcher.Constraint("DistanceX", 4, 2, 4, 1, Q("1.5 mm")),
    Sketcher.Constraint("DistanceY", 0, 2, 18, 3, Q("33 mm")),
    Sketcher.Constraint("DistanceX", 0, 2, 10, 3, Q("26.000001 mm")),
    Sketcher.Constraint("DistanceX", 6, 3, -1, 1, Q("62.837331 mm")),
    Sketcher.Constraint("DistanceY", -1, 1, 6, 3, Q("58.379141 mm")),
])
pad3 = body2.newObject("PartDesign::Pad", "Pad002")
pad3.Profile = sketch5
pad3.Length = 3
doc.recompute()

fillet2 = body2.newObject("PartDesign::Fillet", "Fillet001")
fillet2.Base = (pad3, edges_at(pad3, [
    (-36.837, -448.5, 92.879),
    (-106.837, -448.5, 92.879),
    (-106.837, -448.5, -10.121),
    (-36.837, -448.5, -10.121),
]))
fillet2.Radius = 5

# Sketch on XZ plane
sketch6 = body2.newObject("Sketcher::SketchObject", "Sketch005")
sketch6.AttachmentSupport = (doc.getObject("XZ_Plane001"), [""])
sketch6.MapMode = "FlatFace"
sketch6.AttachmentOffset = App.Placement(App.Vector(0, 0, 450), App.Rotation())
sketch6.addGeometry([
    Part.Circle(App.Vector(-93.837332, 79.87914, 0), App.Vector(0, 0, 1), 5.5),
    Part.Circle(App.Vector(-49.837332, 79.87914, 0), App.Vector(0, 0, 1), 5.5),
    Part.Circle(App.Vector(-49.837332, 2.87914, 0), App.Vector(0, 0, 1), 5.5),
    Part.Circle(App.Vector(-93.837332, 2.87914, 0), App.Vector(0, 0, 1), 5.5),
], False)
sketch6.addConstraint([
    Sketcher.Constraint("Equal", 0, 1),
    Sketcher.Constraint("Equal", 1, 2),
    Sketcher.Constraint("Equal", 2, 3),
    Sketcher.Constraint("Horizontal", 0, 3, 1, 3),
    Sketcher.Constraint("Horizontal", 2, 3, 3, 3),
    Sketcher.Constraint("Vertical", 1, 3, 2, 3),
    Sketcher.Constraint("Vertical", 0, 3, 3, 3),
    Sketcher.Constraint("Diameter", 0, Q("11 mm")),
    Sketcher.Constraint("DistanceX", 0, 3, 1, 3, Q("44 mm")),
    Sketcher.Constraint("DistanceY", 2, 3, 1, 3, Q("77 mm")),
    Sketcher.Constraint("DistanceY", -1, 1, 0, 3, Q("79.87914 mm")),
    Sketcher.Constraint("DistanceX", 0, 3, -1, 1, Q("93.837332 mm")),
])
doc.recompute()
hole3 = body2.newObject("PartDesign::Hole", "Hole002")
hole3.Profile = sketch6
hole3.ThreadType = "None"
hole3.Diameter = 11
hole3.DepthType = "ThroughAll"
body3 = doc.addObject("PartDesign::Body", "Body002")

# Sketch on XZ plane
sketch7 = body3.newObject("Sketcher::SketchObject", "Sketch006")
sketch7.AttachmentSupport = (doc.getObject("XZ_Plane002"), [""])
sketch7.MapMode = "FlatFace"
sketch7.AttachmentOffset = App.Placement(App.Vector(0, 0, 447), App.Rotation())
sketch7.addGeometry([
    Part.LineSegment(App.Vector(-61.837332, 58.37914, 0), App.Vector(-61.837332, 50.87914, 0)),  # 0
    Part.LineSegment(App.Vector(-61.837332, 50.87914, 0), App.Vector(-60.337332, 50.87914, 0)),  # 1
    Part.LineSegment(App.Vector(-60.337332, 50.87914, 0), App.Vector(-60.337332, 58.87914, 0)),  # 2
    Part.ArcOfCircle(Part.Circle(App.Vector(-62.337331, 58.879141, 0), App.Vector(0, 0, 1), 1.999999), math.radians(-0.000043), math.radians(90.000043)),  # 3
    Part.LineSegment(App.Vector(-62.337332, 60.87914, 0), App.Vector(-81.337332, 60.87914, 0)),  # 4
    Part.ArcOfCircle(Part.Circle(App.Vector(-81.337332, 58.87914, 0), App.Vector(0, 0, 1), 2), math.radians(90.000006), math.radians(179.999994)),  # 5
    Part.LineSegment(App.Vector(-83.337332, 58.87914, 0), App.Vector(-83.337332, 22.87914, 0)),  # 6
    Part.ArcOfCircle(Part.Circle(App.Vector(-81.337332, 22.87914, 0), App.Vector(0, 0, 1), 2), math.radians(-179.999994), math.radians(-90.000006)),  # 7
    Part.LineSegment(App.Vector(-81.337332, 20.87914, 0), App.Vector(-62.337332, 20.87914, 0)),  # 8
    Part.ArcOfCircle(Part.Circle(App.Vector(-62.337331, 22.879139, 0), App.Vector(0, 0, 1), 1.999999), math.radians(-90.000043), math.radians(0.000043)),  # 9
    Part.LineSegment(App.Vector(-60.337332, 22.87914, 0), App.Vector(-60.337332, 30.87914, 0)),  # 10
    Part.LineSegment(App.Vector(-60.337332, 30.87914, 0), App.Vector(-61.837332, 30.87914, 0)),  # 11
    Part.LineSegment(App.Vector(-61.837332, 30.87914, 0), App.Vector(-61.837332, 23.37914, 0)),  # 12
    Part.ArcOfCircle(Part.Circle(App.Vector(-62.837331, 23.379139, 0), App.Vector(0, 0, 1), 0.999999), math.radians(-90.000043), math.radians(0.000043)),  # 13
    Part.LineSegment(App.Vector(-62.837332, 22.37914, 0), App.Vector(-80.837332, 22.37914, 0)),  # 14
    Part.ArcOfCircle(Part.Circle(App.Vector(-80.837331, 23.379141, 0), App.Vector(0, 0, 1), 1.000001), math.radians(-179.999945), math.radians(-90.000055)),  # 15
    Part.LineSegment(App.Vector(-81.837332, 23.37914, 0), App.Vector(-81.837332, 58.37914, 0)),  # 16
    Part.ArcOfCircle(Part.Circle(App.Vector(-80.837331, 58.379139, 0), App.Vector(0, 0, 1), 1.000001), math.radians(90.000055), math.radians(179.999945)),  # 17
    Part.LineSegment(App.Vector(-80.837332, 59.37914, 0), App.Vector(-62.837332, 59.37914, 0)),  # 18
    Part.ArcOfCircle(Part.Circle(App.Vector(-62.837331, 58.379141, 0), App.Vector(0, 0, 1), 0.999999), math.radians(-0.000043), math.radians(90.000043)),  # 19
], False)
sketch7.addConstraint([
    Sketcher.Constraint("Coincident", 0, 2, 1, 1),
    Sketcher.Constraint("Coincident", 1, 2, 2, 1),
    Sketcher.Constraint("Tangent", 2, 2, 3, 1),
    Sketcher.Constraint("Tangent", 3, 2, 4, 1),
    Sketcher.Constraint("Tangent", 4, 2, 5, 1),
    Sketcher.Constraint("Tangent", 5, 2, 6, 1),
    Sketcher.Constraint("Tangent", 6, 2, 7, 1),
    Sketcher.Constraint("Tangent", 7, 2, 8, 1),
    Sketcher.Constraint("Tangent", 8, 2, 9, 1),
    Sketcher.Constraint("Tangent", 9, 2, 10, 1),
    Sketcher.Constraint("Coincident", 10, 2, 11, 1),
    Sketcher.Constraint("Coincident", 11, 2, 12, 1),
    Sketcher.Constraint("Tangent", 12, 2, 13, 2),
    Sketcher.Constraint("Tangent", 13, 1, 14, 1),
    Sketcher.Constraint("Tangent", 14, 2, 15, 2),
    Sketcher.Constraint("Tangent", 15, 1, 16, 1),
    Sketcher.Constraint("Tangent", 16, 2, 17, 2),
    Sketcher.Constraint("Tangent", 17, 1, 18, 1),
    Sketcher.Constraint("Tangent", 18, 2, 19, 2),
    Sketcher.Constraint("Tangent", 19, 1, 0, 1),
    Sketcher.Constraint("Vertical", 0),
    Sketcher.Constraint("Horizontal", 1),
    Sketcher.Constraint("Vertical", 2),
    Sketcher.Constraint("Horizontal", 4),
    Sketcher.Constraint("Vertical", 6),
    Sketcher.Constraint("Horizontal", 8),
    Sketcher.Constraint("Vertical", 10),
    Sketcher.Constraint("Horizontal", 11),
    Sketcher.Constraint("Vertical", 12),
    Sketcher.Constraint("Horizontal", 14),
    Sketcher.Constraint("Vertical", 16),
    Sketcher.Constraint("Horizontal", 18),
    Sketcher.Constraint("Equal", 3, 5),
    Sketcher.Constraint("Equal", 5, 7),
    Sketcher.Constraint("Equal", 7, 9),
    Sketcher.Constraint("Equal", 13, 15),
    Sketcher.Constraint("Equal", 15, 17),
    Sketcher.Constraint("Equal", 17, 19),
    Sketcher.Constraint("Vertical", 3, 3, 9, 3),
    Sketcher.Constraint("Vertical", 13, 3, 19, 3),
    Sketcher.Constraint("Equal", 2, 10),
    Sketcher.Constraint("Equal", 0, 12),
    Sketcher.Constraint("Radius", 3, Q("1.999999 mm")),
    Sketcher.Constraint("Radius", 13, Q("0.999999 mm")),
    Sketcher.Constraint("DistanceX", 4, 2, 4, 1, Q("19 mm")),
    Sketcher.Constraint("DistanceX", 14, 2, 14, 1, Q("18 mm")),
    Sketcher.Constraint("DistanceY", 2, 1, 2, 2, Q("8 mm")),
    Sketcher.Constraint("DistanceY", 6, 2, 6, 1, Q("36 mm")),
    Sketcher.Constraint("DistanceY", 16, 1, 16, 2, Q("35 mm")),
    Sketcher.Constraint("DistanceX", 1, 1, 1, 2, Q("1.5 mm")),
    Sketcher.Constraint("DistanceX", 3, 3, -1, 1, Q("62.337331 mm")),
    Sketcher.Constraint("DistanceY", -1, 1, 3, 3, Q("58.879141 mm")),
])
pad4 = body3.newObject("PartDesign::Pad", "Pad003")
pad4.Profile = sketch7
pad4.Length = 3

doc.recompute()
